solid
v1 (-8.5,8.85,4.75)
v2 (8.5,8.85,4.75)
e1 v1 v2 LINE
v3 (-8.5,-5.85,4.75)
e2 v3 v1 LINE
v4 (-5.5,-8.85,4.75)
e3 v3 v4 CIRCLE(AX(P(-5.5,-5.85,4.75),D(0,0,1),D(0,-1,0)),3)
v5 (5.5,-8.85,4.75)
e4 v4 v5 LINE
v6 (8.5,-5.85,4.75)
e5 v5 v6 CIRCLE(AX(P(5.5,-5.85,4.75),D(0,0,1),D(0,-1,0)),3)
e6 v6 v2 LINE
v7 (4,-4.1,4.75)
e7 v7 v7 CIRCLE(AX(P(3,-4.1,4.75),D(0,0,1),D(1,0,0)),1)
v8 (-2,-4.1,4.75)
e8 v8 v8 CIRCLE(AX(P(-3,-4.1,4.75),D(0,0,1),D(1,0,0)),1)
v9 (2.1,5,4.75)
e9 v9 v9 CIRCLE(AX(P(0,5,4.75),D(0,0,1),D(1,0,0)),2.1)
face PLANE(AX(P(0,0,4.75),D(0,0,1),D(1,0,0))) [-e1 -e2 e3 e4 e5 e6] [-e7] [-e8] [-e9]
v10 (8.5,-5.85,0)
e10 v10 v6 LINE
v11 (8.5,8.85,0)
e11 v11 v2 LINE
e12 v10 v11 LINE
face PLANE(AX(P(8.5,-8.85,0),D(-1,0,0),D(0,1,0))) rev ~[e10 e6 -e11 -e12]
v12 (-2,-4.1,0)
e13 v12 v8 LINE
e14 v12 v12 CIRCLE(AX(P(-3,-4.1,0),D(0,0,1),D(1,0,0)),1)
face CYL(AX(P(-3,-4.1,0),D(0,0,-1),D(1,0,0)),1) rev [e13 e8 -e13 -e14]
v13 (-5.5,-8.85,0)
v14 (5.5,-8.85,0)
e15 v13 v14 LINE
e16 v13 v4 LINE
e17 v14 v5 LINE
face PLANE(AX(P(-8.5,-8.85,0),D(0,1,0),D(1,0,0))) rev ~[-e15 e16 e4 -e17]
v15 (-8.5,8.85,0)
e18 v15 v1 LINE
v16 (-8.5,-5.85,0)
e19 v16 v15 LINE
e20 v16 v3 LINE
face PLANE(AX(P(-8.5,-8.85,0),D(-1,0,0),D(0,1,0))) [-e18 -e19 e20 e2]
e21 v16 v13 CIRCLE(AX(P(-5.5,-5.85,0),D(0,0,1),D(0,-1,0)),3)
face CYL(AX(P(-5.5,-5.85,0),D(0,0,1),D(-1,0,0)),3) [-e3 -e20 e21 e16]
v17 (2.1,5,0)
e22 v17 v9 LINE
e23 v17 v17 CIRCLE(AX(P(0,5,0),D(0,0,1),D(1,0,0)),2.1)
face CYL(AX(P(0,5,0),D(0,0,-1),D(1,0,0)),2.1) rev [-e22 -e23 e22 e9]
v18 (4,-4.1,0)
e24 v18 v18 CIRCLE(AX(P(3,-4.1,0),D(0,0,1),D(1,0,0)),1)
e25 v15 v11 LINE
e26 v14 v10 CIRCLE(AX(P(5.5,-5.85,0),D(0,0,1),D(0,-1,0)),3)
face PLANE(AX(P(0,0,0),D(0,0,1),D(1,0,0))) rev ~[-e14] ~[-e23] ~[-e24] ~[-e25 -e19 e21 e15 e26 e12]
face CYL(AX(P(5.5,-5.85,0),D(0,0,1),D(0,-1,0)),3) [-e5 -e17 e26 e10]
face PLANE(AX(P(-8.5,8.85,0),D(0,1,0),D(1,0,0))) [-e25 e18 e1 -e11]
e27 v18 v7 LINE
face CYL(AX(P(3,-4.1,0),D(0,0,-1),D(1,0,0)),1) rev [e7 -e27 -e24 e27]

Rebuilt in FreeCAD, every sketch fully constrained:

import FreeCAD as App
import Part
import Sketcher
from FreeCAD import Vector


def edges_at(feature, points):
    """Names of the edges that pass closest to the given points."""
    edges = feature.Shape.Edges
    near = lambda p: min(range(len(edges)), key=lambda i: edges[i].distToShape(Part.Vertex(*p))[0])
    return sorted({f"Edge{near(p) + 1}" for p in points})

doc = App.newDocument("Part")
body = doc.addObject("PartDesign::Body", "Body")

# Sketch on XY plane
sketch1 = body.newObject("Sketcher::SketchObject", "Sketch")
sketch1.AttachmentSupport = (doc.getObject("XY_Plane"), [""])
sketch1.MapMode = "FlatFace"
sketch1.addGeometry([
    Part.LineSegment(Vector(-8.5, 8.8, 0), Vector(-8.5, -8.8, 0)),  # 0
    Part.LineSegment(Vector(-8.5, -8.8, 0), Vector(8.5, -8.8, 0)),  # 1
    Part.LineSegment(Vector(8.5, -8.8, 0), Vector(8.5, 8.8, 0)),  # 2
    Part.LineSegment(Vector(8.5, 8.8, 0), Vector(-8.5, 8.8, 0)),  # 3
    Part.Circle(Vector(-3, -4.1, 0), Vector(0, 0, 1), 1),  # 4
    Part.Circle(Vector(3, -4.1, 0), Vector(0, 0, 1), 1),  # 5
    Part.Circle(Vector(0, 5, 0), Vector(0, 0, 1), 2.1),  # 6
], False)
sketch1.addConstraint([
    Sketcher.Constraint("Coincident", 0, 2, 1, 1),
    Sketcher.Constraint("Coincident", 1, 2, 2, 1),
    Sketcher.Constraint("Coincident", 2, 2, 3, 1),
    Sketcher.Constraint("Coincident", 3, 2, 0, 1),
    Sketcher.Constraint("Vertical", 0),
    Sketcher.Constraint("Horizontal", 1),
    Sketcher.Constraint("Vertical", 2),
    Sketcher.Constraint("Horizontal", 3),
    Sketcher.Constraint("Equal", 4, 5),
    Sketcher.Constraint("Symmetric", 0, 2, 2, 2, -1, 1),
    Sketcher.Constraint("Symmetric", 4, 3, 5, 3, -2),
    Sketcher.Constraint("PointOnObject", 6, 3, -2),
    Sketcher.Constraint("Diameter", 4, 2.0),
    Sketcher.Constraint("Diameter", 6, 4.2),
    Sketcher.Constraint("DistanceX", 1, 1, 1, 2, 17.0),
    Sketcher.Constraint("DistanceY", 0, 2, 0, 1, 17.7),
    Sketcher.Constraint("DistanceX", 4, 3, -1, 1, 3.0),
    Sketcher.Constraint("DistanceY", -1, 1, 6, 3, 5.0),
    Sketcher.Constraint("DistanceY", 4, 3, -1, 1, 4.1),
])
pad1 = body.newObject("PartDesign::Pad", "Pad")
pad1.Profile = sketch1
pad1.Length = 4.75
doc.recompute()

fillet = body.newObject("PartDesign::Fillet", "Fillet")
fillet.Base = (pad1, edges_at(pad1, [(-8.5, -8.85, 2.375), (8.5, -8.85, 2.375)]))
fillet.Radius = 3

doc.recompute()
